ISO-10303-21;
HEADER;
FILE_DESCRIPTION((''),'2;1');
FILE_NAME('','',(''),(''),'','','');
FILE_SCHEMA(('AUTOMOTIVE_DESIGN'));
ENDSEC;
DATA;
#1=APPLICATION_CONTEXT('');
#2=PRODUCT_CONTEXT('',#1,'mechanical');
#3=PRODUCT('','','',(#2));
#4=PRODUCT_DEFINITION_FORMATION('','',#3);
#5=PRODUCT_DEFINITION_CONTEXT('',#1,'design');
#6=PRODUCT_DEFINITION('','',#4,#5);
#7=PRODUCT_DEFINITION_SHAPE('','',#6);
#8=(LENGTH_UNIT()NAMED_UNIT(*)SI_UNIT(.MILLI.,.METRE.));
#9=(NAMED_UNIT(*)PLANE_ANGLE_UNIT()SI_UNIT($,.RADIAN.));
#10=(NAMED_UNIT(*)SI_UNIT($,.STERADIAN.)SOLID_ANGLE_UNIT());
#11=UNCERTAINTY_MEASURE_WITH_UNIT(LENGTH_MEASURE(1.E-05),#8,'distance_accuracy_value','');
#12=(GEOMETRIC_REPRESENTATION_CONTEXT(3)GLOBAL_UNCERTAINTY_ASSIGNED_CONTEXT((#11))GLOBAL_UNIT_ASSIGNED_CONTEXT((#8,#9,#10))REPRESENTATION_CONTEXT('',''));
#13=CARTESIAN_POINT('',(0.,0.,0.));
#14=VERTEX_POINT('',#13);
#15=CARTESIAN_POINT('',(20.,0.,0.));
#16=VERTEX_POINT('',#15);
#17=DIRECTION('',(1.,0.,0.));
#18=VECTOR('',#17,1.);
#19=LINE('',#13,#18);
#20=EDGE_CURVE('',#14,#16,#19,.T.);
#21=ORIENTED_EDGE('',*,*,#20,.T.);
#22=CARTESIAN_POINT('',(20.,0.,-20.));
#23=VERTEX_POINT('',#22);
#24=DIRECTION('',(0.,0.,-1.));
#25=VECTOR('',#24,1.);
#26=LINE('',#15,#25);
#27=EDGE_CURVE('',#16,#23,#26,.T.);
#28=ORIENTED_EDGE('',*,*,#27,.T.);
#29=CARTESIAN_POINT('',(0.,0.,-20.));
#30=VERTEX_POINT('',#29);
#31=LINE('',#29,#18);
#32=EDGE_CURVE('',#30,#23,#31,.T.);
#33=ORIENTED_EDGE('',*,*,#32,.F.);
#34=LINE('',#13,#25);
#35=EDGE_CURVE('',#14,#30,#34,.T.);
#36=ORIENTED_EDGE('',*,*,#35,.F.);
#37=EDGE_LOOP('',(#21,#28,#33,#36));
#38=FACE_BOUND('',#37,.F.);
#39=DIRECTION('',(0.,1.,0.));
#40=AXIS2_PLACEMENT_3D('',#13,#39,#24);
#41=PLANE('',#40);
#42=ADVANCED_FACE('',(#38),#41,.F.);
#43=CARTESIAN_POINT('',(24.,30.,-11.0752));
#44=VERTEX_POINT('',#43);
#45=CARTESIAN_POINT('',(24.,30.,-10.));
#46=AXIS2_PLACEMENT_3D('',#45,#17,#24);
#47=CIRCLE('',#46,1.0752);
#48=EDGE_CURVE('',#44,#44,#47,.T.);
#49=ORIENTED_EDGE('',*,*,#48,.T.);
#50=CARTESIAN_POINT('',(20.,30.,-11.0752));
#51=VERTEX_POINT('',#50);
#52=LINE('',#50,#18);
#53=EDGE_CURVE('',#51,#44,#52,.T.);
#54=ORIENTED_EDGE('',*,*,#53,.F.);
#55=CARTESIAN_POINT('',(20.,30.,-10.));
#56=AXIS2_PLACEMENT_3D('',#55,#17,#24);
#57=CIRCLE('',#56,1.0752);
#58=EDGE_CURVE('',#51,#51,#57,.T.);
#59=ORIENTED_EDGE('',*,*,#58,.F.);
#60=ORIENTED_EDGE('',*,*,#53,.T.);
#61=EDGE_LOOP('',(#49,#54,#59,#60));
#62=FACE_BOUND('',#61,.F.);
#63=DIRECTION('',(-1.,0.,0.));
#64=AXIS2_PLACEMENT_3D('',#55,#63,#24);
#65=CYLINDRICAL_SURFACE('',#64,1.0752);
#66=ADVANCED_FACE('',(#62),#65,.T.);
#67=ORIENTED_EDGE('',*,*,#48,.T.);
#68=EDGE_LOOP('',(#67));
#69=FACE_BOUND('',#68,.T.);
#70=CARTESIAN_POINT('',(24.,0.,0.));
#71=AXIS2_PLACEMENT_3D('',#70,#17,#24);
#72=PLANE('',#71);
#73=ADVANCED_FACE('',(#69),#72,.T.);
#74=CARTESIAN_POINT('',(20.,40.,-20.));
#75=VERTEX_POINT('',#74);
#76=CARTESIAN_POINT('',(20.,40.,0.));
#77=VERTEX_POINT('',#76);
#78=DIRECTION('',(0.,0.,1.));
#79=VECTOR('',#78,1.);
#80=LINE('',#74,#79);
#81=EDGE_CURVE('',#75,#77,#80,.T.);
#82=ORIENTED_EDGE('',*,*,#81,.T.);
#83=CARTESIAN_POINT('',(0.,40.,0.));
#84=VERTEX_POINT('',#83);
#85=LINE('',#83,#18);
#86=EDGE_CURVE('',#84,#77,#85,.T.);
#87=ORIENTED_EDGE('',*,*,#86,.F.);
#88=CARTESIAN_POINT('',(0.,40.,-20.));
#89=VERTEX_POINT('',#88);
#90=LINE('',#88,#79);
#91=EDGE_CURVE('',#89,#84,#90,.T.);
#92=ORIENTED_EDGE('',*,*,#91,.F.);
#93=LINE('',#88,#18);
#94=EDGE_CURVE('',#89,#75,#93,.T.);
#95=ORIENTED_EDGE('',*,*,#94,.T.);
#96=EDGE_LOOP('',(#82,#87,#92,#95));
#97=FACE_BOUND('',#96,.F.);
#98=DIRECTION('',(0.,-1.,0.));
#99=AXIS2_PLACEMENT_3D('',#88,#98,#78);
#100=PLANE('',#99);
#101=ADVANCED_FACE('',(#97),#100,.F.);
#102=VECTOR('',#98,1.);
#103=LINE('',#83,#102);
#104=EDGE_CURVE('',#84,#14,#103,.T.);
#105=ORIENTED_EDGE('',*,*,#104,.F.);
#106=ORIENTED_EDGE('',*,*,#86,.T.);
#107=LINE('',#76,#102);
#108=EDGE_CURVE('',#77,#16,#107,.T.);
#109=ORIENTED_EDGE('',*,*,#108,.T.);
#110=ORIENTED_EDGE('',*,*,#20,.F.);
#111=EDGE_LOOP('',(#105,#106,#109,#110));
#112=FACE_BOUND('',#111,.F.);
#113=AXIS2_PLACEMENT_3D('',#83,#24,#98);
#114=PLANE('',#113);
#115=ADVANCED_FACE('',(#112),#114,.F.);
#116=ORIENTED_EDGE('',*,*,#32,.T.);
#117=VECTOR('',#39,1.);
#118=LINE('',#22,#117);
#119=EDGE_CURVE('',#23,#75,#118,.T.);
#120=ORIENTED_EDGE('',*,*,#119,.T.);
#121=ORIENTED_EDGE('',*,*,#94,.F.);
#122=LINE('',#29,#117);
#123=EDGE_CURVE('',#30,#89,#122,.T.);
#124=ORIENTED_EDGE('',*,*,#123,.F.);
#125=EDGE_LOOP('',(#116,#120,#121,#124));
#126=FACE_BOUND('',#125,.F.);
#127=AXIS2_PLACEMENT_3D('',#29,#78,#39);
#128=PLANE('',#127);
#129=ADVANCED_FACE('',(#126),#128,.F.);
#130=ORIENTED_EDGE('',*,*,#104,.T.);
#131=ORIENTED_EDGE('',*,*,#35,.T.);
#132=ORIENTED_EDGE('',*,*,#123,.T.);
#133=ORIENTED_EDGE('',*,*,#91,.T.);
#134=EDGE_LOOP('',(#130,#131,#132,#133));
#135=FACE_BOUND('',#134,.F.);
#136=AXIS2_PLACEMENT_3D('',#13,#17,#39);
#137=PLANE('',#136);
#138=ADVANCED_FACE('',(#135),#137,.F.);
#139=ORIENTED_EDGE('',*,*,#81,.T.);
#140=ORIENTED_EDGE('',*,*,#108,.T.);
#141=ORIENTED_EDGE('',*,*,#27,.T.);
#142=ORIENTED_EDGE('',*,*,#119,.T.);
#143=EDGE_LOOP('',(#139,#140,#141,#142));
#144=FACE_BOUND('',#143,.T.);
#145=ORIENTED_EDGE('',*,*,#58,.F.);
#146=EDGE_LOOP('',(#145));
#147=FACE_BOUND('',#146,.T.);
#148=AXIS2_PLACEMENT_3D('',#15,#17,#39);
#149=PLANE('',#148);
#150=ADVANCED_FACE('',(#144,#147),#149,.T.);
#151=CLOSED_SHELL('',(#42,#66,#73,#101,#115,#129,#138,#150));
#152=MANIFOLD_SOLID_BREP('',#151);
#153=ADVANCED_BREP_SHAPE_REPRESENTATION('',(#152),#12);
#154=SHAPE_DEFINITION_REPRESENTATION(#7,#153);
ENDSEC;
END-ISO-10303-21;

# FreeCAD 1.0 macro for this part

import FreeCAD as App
import Part
import Sketcher
from FreeCAD import Vector


def add_polygon(sketch, points):
    """Adds a closed chain of lines whose ends are joined by coincident constraints."""
    first, n = sketch.GeometryCount, len(points)
    for a, b in zip(points, points[1:] + points[:1]):
        sketch.addGeometry(Part.LineSegment(App.Vector(*a, 0), App.Vector(*b, 0)), False)
    for i in range(n):
        sketch.addConstraint(Sketcher.Constraint("Coincident", first + i, 2, first + (i + 1) % n, 1))

doc = App.newDocument("Part")
body = doc.addObject("PartDesign::Body", "Body")

# Sketch on YZ plane
sketch1 = body.newObject("Sketcher::SketchObject", "Sketch")
sketch1.AttachmentSupport = (doc.getObject("YZ_Plane"), [""])
sketch1.MapMode = "FlatFace"
add_polygon(sketch1, [(40, 0), (0, 0), (0, -20), (40, -20)])  # lines 0-3
sketch1.addConstraint(Sketcher.Constraint("Horizontal", 0))
sketch1.addConstraint(Sketcher.Constraint("Vertical", 1))
sketch1.addConstraint(Sketcher.Constraint("Horizontal", 2))
sketch1.addConstraint(Sketcher.Constraint("Vertical", 3))
sketch1.addConstraint(Sketcher.Constraint("Coincident", 0, 2, -1, 1))
sketch1.addConstraint(Sketcher.Constraint("DistanceX", 0, 2, 0, 1, 40.0))
sketch1.addConstraint(Sketcher.Constraint("DistanceY", 1, 2, 1, 1, 20.0))
pad1 = body.newObject("PartDesign::Pad", "Pad")
pad1.Profile = sketch1
pad1.Length = 20

# Sketch on YZ plane
sketch2 = body.newObject("Sketcher::SketchObject", "Sketch001")
sketch2.AttachmentSupport = (doc.getObject("YZ_Plane"), [""])
sketch2.MapMode = "FlatFace"
sketch2.AttachmentOffset = App.Placement(Vector(0, 0, 20), App.Rotation())
sketch2.addGeometry(Part.Circle(Vector(30, -10, 0), Vector(0, 0, 1), 1.1), False)
sketch2.addConstraint(Sketcher.Constraint("DistanceY", 0, 3, -1, 1, 10.0))
sketch2.addConstraint(Sketcher.Constraint("Diameter", 0, 2.1504))
sketch2.addConstraint(Sketcher.Constraint("DistanceX", -1, 1, 0, 3, 30.0))
pad2 = body.newObject("PartDesign::Pad", "Pad001")
pad2.Profile = sketch2
pad2.Length = 4

doc.recompute()
